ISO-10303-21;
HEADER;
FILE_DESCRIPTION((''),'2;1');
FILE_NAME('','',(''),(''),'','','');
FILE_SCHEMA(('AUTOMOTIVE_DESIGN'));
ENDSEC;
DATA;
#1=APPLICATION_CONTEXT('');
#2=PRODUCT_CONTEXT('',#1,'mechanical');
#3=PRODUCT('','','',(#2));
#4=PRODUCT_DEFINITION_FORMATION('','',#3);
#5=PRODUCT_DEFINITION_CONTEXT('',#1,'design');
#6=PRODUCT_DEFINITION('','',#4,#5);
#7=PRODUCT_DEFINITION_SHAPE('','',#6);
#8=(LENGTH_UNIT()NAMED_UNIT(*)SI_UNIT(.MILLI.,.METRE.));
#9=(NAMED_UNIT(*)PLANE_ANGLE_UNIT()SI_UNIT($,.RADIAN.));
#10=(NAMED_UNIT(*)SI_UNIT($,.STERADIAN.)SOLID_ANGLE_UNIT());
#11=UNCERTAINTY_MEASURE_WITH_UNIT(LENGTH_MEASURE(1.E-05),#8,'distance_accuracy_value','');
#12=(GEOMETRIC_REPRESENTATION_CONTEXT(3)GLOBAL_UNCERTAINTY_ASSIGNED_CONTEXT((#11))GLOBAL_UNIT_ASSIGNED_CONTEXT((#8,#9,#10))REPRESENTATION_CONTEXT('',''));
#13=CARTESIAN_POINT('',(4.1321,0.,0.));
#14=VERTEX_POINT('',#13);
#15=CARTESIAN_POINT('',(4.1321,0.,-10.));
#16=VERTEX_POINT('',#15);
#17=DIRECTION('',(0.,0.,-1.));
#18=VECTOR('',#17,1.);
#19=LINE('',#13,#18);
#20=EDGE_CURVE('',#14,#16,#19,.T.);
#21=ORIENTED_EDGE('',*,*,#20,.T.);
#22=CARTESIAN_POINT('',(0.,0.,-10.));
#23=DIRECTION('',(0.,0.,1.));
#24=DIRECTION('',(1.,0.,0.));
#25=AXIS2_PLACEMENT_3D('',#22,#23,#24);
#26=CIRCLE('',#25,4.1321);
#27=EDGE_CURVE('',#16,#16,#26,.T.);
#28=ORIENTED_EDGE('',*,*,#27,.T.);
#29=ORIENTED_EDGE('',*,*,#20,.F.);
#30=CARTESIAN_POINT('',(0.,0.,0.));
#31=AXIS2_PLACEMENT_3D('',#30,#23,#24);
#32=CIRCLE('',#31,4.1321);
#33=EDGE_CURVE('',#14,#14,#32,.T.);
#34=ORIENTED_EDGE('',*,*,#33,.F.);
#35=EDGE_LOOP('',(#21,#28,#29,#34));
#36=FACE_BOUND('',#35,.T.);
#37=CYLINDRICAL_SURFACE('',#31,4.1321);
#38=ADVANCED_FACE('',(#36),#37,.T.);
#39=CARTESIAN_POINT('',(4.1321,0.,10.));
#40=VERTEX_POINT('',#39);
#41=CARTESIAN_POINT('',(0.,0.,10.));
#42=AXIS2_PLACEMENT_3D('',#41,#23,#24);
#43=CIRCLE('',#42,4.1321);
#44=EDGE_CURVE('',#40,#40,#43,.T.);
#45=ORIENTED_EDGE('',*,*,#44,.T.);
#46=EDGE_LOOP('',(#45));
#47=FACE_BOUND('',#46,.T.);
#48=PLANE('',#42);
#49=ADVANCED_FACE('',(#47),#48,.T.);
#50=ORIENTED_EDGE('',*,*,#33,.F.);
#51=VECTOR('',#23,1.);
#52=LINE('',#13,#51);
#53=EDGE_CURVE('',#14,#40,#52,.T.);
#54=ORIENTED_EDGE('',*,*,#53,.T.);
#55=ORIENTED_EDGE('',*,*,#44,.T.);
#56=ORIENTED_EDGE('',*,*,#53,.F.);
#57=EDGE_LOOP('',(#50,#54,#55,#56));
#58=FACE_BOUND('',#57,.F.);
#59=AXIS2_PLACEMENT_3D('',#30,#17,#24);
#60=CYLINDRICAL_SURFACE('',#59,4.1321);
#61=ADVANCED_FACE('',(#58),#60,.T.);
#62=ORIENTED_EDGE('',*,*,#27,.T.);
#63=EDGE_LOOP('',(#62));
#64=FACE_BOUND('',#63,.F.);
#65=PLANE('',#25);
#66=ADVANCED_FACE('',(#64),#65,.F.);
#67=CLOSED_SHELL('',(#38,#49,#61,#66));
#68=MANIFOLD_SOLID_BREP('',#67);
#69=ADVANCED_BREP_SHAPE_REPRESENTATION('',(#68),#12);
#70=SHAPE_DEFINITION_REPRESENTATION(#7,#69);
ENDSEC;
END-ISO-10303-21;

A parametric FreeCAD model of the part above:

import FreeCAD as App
import Part
import Sketcher
Q = App.Units.Quantity

doc = App.newDocument("Part")
params = doc.addObject("Spreadsheet::Sheet", "Params")
for row, (alias, value) in enumerate([
    ("pad1_length", "20 mm"),
], start=1):
    params.set(f"A{row}", alias)
    params.set(f"B{row}", "=" + value)
    params.setAlias(f"B{row}", alias)

body = doc.addObject("PartDesign::Body", "Body")

sketch1 = body.newObject("Sketcher::SketchObject", "Sketch")
sketch1.AttachmentSupport = (doc.getObject("XY_Plane"), [""])
sketch1.MapMode = "FlatFace"
sketch1.addGeometry(Part.Circle(App.Vector(0, 0, 0), App.Vector(0, 0, 1), 4.1), False)
sketch1.addConstraint([
    Sketcher.Constraint("Coincident", 0, 3, -1, 1),
    Sketcher.Constraint("Diameter", 0, Q("8.2642 mm")),
])
pad1 = body.newObject("PartDesign::Pad", "Pad")
pad1.Profile = sketch1
pad1.setExpression("Length", "Params.pad1_length")
pad1.Midplane = True

doc.recompute()
